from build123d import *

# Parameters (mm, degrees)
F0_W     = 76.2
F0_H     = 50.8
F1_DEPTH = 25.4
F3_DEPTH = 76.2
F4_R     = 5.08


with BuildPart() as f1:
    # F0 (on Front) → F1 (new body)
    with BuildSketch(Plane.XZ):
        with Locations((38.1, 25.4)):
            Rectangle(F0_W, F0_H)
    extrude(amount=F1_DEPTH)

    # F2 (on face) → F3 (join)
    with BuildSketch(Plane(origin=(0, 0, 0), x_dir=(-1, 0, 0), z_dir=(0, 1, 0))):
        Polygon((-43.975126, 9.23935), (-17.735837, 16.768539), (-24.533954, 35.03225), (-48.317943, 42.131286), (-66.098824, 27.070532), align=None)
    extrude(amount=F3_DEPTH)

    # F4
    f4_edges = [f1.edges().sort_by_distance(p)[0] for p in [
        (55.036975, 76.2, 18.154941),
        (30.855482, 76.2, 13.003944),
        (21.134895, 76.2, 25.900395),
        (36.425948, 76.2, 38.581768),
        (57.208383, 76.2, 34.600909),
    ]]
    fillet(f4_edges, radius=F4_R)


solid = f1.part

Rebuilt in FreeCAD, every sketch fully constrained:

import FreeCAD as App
import Part
import Sketcher

V = App.Vector
Q = App.Units.Quantity


def edges_at(feature, points):
    """Names of the edges that pass closest to the given points."""
    edges = feature.Shape.Edges
    near = lambda p: min(range(len(edges)), key=lambda i: edges[i].distToShape(Part.Vertex(*p))[0])
    return sorted({f"Edge{near(p) + 1}" for p in points})

doc = App.newDocument("Part")
body = doc.addObject("PartDesign::Body", "Body")

sketch1 = body.newObject("Sketcher::SketchObject", "Sketch")
sketch1.AttachmentSupport = (doc.getObject("XZ_Plane"), [""])
sketch1.MapMode = "FlatFace"
sketch1.addGeometry([
    Part.LineSegment(V(0, 50.8, 0), V(0, 0, 0)),
    Part.LineSegment(V(0, 0, 0), V(76.2, 0, 0)),
    Part.LineSegment(V(76.2, 0, 0), V(76.2, 50.8, 0)),
    Part.LineSegment(V(76.2, 50.8, 0), V(0, 50.8, 0)),
], False)
sketch1.addConstraint([
    Sketcher.Constraint("Coincident", 0, 2, 1, 1),
    Sketcher.Constraint("Coincident", 1, 2, 2, 1),
    Sketcher.Constraint("Coincident", 2, 2, 3, 1),
    Sketcher.Constraint("Coincident", 3, 2, 0, 1),
    Sketcher.Constraint("Vertical", 0),
    Sketcher.Constraint("Horizontal", 1),
    Sketcher.Constraint("Vertical", 2),
    Sketcher.Constraint("Horizontal", 3),
    Sketcher.Constraint("Coincident", 0, 2, -1, 1),
    Sketcher.Constraint("DistanceX", 1, 1, 1, 2, Q("3 in")),
    Sketcher.Constraint("DistanceY", 0, 2, 0, 1, Q("2 in")),
])
pad1 = body.newObject("PartDesign::Pad", "Pad")
pad1.Profile = sketch1
pad1.Length = Q("1 in")

sketch2 = body.newObject("Sketcher::SketchObject", "Sketch001")
sketch2.AttachmentSupport = (doc.getObject("XZ_Plane"), [""])
sketch2.MapMode = "FlatFace"
sketch2.addGeometry([
    Part.LineSegment(V(43.975126, 9.23935, 0), V(17.735837, 16.768539, 0)),
    Part.LineSegment(V(17.735837, 16.768539, 0), V(24.533954, 35.03225, 0)),
    Part.LineSegment(V(24.533954, 35.03225, 0), V(48.317943, 42.131286, 0)),
    Part.LineSegment(V(48.317943, 42.131286, 0), V(66.098824, 27.070532, 0)),
    Part.LineSegment(V(66.098824, 27.070532, 0), V(43.975126, 9.23935, 0)),
], False)
sketch2.addConstraint([
    Sketcher.Constraint("Coincident", 0, 2, 1, 1),
    Sketcher.Constraint("Coincident", 1, 2, 2, 1),
    Sketcher.Constraint("Coincident", 2, 2, 3, 1),
    Sketcher.Constraint("Coincident", 3, 2, 4, 1),
    Sketcher.Constraint("Coincident", 4, 2, 0, 1),
    Sketcher.Constraint("DistanceY", 4, 2, 1, 2, Q("25.7929 mm")),
    Sketcher.Constraint("Distance", 0, Q("27.29815 mm")),
    Sketcher.Constraint("Distance", 1, Q("19.487882 mm")),
    Sketcher.Constraint("Distance", 3, Q("23.302061 mm")),
    Sketcher.Constraint("DistanceY", -1, 1, 0, 2, Q("16.768539 mm")),
    Sketcher.Constraint("DistanceY", -1, 1, 1, 2, Q("35.03225 mm")),
    Sketcher.Constraint("DistanceY", -1, 1, 3, 2, Q("27.070532 mm")),
    Sketcher.Constraint("DistanceX", 1, 2, 2, 2, Q("23.783989 mm")),
    Sketcher.Constraint("DistanceX", 2, 2, 3, 2, Q("17.780881 mm")),
    Sketcher.Constraint("DistanceX", -1, 1, 0, 2, Q("17.735837 mm")),
])
pad2 = body.newObject("PartDesign::Pad", "Pad001")
pad2.Profile = sketch2
pad2.Length = Q("3 in")
pad2.Reversed = True
doc.recompute()

fillet = body.newObject("PartDesign::Fillet", "Fillet")
fillet.Base = (pad2, edges_at(pad2, [
    (55.037, 76.2, 18.155),
    (30.855, 76.2, 13.004),
    (21.135, 76.2, 25.9),
    (36.426, 76.2, 38.582),
    (57.208, 76.2, 34.601),
]))
fillet.Radius = Q("0.2 in")

doc.recompute()
